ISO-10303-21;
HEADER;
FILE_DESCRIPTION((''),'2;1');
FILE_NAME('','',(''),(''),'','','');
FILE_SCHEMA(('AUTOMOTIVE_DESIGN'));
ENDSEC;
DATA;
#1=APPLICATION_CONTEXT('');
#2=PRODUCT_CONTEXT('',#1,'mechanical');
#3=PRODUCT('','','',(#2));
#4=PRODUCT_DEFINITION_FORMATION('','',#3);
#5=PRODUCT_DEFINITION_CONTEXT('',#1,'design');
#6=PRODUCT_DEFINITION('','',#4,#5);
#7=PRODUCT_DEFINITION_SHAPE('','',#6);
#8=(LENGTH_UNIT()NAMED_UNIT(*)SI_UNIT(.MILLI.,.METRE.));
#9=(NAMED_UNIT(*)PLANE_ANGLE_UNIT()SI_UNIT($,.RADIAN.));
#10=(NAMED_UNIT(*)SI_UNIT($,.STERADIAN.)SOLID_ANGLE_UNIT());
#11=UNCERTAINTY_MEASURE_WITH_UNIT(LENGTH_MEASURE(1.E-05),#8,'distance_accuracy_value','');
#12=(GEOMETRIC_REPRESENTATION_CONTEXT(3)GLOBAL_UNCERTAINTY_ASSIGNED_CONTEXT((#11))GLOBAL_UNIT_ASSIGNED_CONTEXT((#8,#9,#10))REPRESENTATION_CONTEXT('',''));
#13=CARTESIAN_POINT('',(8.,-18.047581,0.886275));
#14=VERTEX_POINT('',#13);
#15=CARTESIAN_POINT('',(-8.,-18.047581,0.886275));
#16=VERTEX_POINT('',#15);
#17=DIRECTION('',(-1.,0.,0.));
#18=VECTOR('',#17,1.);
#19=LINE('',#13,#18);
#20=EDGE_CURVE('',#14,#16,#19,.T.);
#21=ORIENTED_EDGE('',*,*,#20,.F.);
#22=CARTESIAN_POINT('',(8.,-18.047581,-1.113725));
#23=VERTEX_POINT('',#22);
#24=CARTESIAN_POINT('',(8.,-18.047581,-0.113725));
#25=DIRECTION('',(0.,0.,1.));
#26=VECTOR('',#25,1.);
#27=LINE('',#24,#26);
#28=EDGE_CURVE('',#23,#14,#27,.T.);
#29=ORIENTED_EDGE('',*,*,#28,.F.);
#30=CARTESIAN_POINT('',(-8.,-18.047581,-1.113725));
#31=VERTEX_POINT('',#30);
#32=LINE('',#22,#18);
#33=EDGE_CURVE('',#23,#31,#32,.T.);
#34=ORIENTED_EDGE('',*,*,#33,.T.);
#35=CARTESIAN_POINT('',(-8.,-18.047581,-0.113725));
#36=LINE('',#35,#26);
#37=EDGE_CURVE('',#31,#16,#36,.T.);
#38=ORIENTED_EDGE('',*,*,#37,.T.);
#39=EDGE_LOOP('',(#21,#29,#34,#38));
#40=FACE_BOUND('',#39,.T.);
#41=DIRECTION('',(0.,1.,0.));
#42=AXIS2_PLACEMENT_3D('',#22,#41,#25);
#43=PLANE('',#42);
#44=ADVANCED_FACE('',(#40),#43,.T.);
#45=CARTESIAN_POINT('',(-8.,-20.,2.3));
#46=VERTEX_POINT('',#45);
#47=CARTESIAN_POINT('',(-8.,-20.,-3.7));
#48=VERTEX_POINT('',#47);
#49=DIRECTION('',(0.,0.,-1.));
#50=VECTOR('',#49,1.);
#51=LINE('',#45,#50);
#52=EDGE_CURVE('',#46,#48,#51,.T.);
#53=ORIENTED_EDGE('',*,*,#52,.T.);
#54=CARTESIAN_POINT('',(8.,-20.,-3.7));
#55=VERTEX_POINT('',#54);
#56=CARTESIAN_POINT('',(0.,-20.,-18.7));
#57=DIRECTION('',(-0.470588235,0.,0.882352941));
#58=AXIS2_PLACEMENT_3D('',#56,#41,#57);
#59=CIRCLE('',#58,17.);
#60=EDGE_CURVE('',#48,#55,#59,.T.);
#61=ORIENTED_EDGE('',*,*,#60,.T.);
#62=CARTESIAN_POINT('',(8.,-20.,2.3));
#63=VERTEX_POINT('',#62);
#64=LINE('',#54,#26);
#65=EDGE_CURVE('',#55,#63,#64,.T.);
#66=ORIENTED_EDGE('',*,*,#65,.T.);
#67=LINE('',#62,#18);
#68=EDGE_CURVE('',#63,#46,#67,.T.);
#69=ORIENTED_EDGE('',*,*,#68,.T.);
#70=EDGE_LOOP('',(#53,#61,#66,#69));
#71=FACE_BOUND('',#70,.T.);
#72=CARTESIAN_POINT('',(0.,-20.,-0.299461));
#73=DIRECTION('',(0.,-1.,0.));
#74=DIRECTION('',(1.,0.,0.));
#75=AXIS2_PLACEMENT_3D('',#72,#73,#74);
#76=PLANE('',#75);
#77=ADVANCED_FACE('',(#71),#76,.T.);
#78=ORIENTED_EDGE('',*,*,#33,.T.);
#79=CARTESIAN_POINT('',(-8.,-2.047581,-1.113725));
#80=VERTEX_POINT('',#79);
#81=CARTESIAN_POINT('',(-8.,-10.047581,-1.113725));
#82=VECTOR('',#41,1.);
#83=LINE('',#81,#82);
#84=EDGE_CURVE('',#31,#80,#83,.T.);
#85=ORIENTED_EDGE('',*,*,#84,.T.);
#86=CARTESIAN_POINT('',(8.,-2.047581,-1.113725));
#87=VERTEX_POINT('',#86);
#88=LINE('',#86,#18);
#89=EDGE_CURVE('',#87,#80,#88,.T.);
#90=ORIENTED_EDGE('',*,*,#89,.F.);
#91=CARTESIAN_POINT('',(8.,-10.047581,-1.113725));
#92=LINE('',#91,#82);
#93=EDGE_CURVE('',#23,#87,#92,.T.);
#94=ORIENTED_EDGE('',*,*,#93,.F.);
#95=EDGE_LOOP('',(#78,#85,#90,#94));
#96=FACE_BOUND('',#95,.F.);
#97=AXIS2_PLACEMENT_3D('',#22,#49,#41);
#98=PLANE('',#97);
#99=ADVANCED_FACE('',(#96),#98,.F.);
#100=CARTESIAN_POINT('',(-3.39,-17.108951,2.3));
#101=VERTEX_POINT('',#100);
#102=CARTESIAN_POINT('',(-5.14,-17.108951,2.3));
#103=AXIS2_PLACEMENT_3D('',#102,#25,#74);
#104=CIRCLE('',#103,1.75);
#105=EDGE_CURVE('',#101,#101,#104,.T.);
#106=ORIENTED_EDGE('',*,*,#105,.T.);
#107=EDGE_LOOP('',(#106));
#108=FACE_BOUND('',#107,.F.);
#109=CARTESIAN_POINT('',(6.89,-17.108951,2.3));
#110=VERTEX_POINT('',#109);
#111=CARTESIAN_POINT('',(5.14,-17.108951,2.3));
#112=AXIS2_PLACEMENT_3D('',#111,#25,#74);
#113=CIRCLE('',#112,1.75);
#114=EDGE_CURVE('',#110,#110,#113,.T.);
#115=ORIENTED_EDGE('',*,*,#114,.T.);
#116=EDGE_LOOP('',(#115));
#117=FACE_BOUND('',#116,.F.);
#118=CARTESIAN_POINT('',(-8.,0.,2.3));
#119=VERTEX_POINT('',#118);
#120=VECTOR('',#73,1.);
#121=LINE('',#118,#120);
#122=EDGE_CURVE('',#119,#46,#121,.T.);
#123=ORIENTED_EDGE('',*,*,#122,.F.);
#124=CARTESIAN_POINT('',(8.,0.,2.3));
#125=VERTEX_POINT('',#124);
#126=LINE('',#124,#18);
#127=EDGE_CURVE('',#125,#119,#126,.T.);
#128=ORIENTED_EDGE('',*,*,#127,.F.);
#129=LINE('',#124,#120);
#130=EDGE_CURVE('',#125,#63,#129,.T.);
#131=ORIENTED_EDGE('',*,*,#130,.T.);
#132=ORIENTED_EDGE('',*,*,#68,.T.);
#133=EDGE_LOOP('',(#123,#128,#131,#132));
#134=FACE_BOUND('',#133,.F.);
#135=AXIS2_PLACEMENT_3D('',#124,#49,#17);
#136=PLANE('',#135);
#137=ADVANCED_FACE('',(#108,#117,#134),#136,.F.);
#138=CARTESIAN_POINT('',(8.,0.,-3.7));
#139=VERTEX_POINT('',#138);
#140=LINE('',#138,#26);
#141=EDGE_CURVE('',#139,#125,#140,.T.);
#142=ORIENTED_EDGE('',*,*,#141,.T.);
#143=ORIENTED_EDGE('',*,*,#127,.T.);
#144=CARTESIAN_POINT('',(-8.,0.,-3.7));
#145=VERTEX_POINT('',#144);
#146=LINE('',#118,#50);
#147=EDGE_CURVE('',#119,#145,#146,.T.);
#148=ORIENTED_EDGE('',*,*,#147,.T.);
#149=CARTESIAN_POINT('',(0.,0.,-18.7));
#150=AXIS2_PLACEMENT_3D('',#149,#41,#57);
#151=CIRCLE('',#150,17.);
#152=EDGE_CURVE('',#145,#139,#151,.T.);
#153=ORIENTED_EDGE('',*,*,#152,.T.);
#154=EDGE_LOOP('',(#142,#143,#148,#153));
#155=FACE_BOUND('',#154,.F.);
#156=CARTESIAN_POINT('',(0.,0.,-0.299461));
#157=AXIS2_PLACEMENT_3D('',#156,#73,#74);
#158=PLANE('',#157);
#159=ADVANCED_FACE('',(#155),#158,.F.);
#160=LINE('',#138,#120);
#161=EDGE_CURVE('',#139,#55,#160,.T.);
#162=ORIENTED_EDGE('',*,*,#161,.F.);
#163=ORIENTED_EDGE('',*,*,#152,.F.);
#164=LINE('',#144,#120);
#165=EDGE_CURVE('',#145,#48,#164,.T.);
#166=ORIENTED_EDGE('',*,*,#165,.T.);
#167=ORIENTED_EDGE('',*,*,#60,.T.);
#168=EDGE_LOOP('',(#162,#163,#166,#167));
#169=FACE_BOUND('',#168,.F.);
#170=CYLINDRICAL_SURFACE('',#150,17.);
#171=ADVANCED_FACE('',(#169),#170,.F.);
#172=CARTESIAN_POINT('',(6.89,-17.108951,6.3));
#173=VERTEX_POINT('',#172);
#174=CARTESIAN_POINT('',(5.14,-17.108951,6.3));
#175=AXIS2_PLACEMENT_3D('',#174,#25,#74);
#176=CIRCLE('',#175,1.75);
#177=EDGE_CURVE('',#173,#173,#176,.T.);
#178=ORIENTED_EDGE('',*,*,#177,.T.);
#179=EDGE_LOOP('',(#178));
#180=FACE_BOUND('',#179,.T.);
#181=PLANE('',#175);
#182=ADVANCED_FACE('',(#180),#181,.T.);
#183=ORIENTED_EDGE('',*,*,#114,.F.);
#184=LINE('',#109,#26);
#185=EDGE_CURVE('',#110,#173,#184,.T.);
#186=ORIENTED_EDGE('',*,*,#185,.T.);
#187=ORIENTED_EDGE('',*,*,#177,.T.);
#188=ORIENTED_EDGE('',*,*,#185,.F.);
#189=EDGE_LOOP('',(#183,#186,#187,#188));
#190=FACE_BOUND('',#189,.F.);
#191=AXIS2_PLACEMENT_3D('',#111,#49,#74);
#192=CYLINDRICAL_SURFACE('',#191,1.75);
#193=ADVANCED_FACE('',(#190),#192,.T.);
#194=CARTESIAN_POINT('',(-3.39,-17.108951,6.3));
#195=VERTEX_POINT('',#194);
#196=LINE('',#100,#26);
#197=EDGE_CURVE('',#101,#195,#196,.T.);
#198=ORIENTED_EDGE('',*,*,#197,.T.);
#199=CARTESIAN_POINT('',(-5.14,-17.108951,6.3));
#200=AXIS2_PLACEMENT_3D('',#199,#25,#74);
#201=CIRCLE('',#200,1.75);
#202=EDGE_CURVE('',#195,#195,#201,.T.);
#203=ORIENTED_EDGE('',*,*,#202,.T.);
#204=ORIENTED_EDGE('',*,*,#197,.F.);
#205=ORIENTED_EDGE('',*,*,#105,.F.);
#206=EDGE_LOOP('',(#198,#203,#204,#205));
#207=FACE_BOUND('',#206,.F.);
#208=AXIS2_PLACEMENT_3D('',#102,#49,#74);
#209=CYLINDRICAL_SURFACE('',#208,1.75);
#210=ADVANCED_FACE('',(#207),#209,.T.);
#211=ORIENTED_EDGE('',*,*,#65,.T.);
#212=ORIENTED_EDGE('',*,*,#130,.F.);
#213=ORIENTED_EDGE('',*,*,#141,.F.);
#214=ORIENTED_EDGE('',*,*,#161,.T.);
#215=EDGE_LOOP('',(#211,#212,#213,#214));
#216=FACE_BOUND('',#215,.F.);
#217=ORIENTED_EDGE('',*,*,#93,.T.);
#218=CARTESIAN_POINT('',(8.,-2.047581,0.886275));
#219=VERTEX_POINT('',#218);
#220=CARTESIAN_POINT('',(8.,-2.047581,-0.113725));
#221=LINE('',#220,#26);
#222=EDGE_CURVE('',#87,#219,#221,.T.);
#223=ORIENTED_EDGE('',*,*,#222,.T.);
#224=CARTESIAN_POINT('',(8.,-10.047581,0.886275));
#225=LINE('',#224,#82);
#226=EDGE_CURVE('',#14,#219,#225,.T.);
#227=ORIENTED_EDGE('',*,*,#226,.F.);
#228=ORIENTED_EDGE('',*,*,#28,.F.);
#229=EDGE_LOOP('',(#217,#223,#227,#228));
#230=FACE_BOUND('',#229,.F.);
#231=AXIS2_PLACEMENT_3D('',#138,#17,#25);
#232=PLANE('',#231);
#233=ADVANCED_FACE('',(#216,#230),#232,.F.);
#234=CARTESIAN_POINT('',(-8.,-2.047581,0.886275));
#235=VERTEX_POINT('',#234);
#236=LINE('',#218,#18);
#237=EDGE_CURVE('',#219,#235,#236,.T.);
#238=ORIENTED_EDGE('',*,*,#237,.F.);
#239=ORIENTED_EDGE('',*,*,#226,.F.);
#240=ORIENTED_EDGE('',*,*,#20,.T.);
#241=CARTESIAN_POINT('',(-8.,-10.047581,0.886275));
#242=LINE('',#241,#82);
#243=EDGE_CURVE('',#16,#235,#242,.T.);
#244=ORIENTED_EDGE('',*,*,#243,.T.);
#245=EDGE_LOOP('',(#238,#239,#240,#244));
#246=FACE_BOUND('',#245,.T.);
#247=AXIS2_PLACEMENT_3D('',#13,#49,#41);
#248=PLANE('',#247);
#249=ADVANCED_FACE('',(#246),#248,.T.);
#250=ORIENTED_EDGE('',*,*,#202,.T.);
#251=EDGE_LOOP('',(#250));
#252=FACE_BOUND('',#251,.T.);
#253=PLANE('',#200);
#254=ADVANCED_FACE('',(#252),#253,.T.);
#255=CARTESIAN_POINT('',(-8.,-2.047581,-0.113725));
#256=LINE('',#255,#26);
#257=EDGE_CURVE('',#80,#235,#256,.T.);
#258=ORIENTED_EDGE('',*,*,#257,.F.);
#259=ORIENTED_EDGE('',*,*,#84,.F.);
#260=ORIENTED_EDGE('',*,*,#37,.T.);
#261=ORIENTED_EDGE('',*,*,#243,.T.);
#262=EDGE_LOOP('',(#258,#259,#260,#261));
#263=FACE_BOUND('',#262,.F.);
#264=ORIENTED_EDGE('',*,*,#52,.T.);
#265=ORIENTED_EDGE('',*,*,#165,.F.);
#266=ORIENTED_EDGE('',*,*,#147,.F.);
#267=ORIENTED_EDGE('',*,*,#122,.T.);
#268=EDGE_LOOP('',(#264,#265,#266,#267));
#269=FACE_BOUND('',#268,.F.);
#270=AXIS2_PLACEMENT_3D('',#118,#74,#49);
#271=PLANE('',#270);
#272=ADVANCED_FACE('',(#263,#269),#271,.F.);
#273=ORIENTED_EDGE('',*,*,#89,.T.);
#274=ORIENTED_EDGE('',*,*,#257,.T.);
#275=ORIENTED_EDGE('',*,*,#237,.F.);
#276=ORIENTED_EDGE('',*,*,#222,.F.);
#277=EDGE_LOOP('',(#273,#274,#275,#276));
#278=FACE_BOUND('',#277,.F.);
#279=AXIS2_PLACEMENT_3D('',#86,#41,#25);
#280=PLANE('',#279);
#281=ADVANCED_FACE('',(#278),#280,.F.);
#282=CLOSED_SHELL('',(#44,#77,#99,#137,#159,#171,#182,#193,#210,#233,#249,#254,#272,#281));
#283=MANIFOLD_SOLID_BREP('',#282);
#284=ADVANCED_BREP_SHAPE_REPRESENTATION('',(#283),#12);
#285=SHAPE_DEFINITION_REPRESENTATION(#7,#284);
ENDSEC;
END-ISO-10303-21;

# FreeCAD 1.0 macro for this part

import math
import FreeCAD as App
import Part
import Sketcher
from FreeCAD import Vector
Q = App.Units.Quantity

doc = App.newDocument("Part")
body = doc.addObject("PartDesign::Body", "Body")

# Sketch on XZ plane
sketch1 = body.newObject("Sketcher::SketchObject", "Sketch")
sketch1.AttachmentSupport = (doc.getObject("XZ_Plane"), [""])
sketch1.MapMode = "FlatFace"
sketch1.addGeometry([
    Part.ArcOfCircle(Part.Circle(Vector(0, -19, 0), Vector(0, 0, 1), 17), math.radians(62), math.radians(118)),
    Part.LineSegment(Vector(8, -4, 0), Vector(8, 2, 0)),
    Part.LineSegment(Vector(8, 2, 0), Vector(-8, 2, 0)),
    Part.LineSegment(Vector(-8, 2, 0), Vector(-8, -4, 0)),
], False)
sketch1.addConstraint([
    Sketcher.Constraint("Coincident", 0, 1, 1, 1),
    Sketcher.Constraint("Coincident", 1, 2, 2, 1),
    Sketcher.Constraint("Coincident", 2, 2, 3, 1),
    Sketcher.Constraint("Coincident", 3, 2, 0, 2),
    Sketcher.Constraint("Vertical", 1),
    Sketcher.Constraint("Horizontal", 2),
    Sketcher.Constraint("Vertical", 3),
    Sketcher.Constraint("Symmetric", 0, 1, 3, 2, -2),
    Sketcher.Constraint("Radius", 0, Q("17 mm")),
    Sketcher.Constraint("DistanceX", 2, 2, 2, 1, Q("16 mm")),
    Sketcher.Constraint("DistanceY", 1, 1, 1, 2, Q("6 mm")),
    Sketcher.Constraint("DistanceY", 0, 3, -1, 1, Q("18.7 mm")),
])
pad1 = body.newObject("PartDesign::Pad", "Pad")
pad1.Profile = sketch1
pad1.Length = 20

# Sketch on YZ plane
sketch2 = body.newObject("Sketcher::SketchObject", "Sketch001")
sketch2.AttachmentSupport = (doc.getObject("YZ_Plane"), [""])
sketch2.MapMode = "FlatFace"
sketch2.AttachmentOffset = App.Placement(Vector(0, 0, 8), App.Rotation())
sketch2.addGeometry([
    Part.LineSegment(Vector(-18, 0.9, 0), Vector(-18, -1.1, 0)),
    Part.LineSegment(Vector(-18, -1.1, 0), Vector(-2, -1.1, 0)),
    Part.LineSegment(Vector(-2, -1.1, 0), Vector(-2, 0.9, 0)),
    Part.LineSegment(Vector(-2, 0.9, 0), Vector(-18, 0.9, 0)),
], False)
sketch2.addConstraint([
    Sketcher.Constraint("Coincident", 0, 2, 1, 1),
    Sketcher.Constraint("Coincident", 1, 2, 2, 1),
    Sketcher.Constraint("Coincident", 2, 2, 3, 1),
    Sketcher.Constraint("Coincident", 3, 2, 0, 1),
    Sketcher.Constraint("Vertical", 0),
    Sketcher.Constraint("Horizontal", 1),
    Sketcher.Constraint("Vertical", 2),
    Sketcher.Constraint("Horizontal", 3),
    Sketcher.Constraint("DistanceX", 1, 1, 1, 2, Q("16 mm")),
    Sketcher.Constraint("DistanceY", 0, 2, 0, 1, Q("2 mm")),
    Sketcher.Constraint("DistanceX", 0, 2, -1, 1, Q("18.047581 mm")),
    Sketcher.Constraint("DistanceY", 0, 2, -1, 1, Q("1.113725 mm")),
])
pocket1 = body.newObject("PartDesign::Pocket", "Pocket")
pocket1.Profile = sketch2
pocket1.Type = "ThroughAll"

# Sketch on XY plane
sketch3 = body.newObject("Sketcher::SketchObject", "Sketch002")
sketch3.AttachmentSupport = (doc.getObject("XY_Plane"), [""])
sketch3.MapMode = "FlatFace"
sketch3.AttachmentOffset = App.Placement(Vector(0, 0, 2.3), App.Rotation())
sketch3.addGeometry([
    Part.Circle(Vector(-5.1, -17.1, 0), Vector(0, 0, 1), 1.8),
    Part.Circle(Vector(5.1, -17.1, 0), Vector(0, 0, 1), 1.8),
], False)
sketch3.addConstraint([
    Sketcher.Constraint("Equal", 0, 1),
    Sketcher.Constraint("Symmetric", 0, 3, 1, 3, -2),
    Sketcher.Constraint("Diameter", 0, Q("3.5 mm")),
    Sketcher.Constraint("DistanceX", 0, 3, -1, 1, Q("5.14 mm")),
    Sketcher.Constraint("DistanceY", 0, 3, -1, 1, Q("17.108951 mm")),
])
pad2 = body.newObject("PartDesign::Pad", "Pad001")
pad2.Profile = sketch3
pad2.Length = 4

doc.recompute()
